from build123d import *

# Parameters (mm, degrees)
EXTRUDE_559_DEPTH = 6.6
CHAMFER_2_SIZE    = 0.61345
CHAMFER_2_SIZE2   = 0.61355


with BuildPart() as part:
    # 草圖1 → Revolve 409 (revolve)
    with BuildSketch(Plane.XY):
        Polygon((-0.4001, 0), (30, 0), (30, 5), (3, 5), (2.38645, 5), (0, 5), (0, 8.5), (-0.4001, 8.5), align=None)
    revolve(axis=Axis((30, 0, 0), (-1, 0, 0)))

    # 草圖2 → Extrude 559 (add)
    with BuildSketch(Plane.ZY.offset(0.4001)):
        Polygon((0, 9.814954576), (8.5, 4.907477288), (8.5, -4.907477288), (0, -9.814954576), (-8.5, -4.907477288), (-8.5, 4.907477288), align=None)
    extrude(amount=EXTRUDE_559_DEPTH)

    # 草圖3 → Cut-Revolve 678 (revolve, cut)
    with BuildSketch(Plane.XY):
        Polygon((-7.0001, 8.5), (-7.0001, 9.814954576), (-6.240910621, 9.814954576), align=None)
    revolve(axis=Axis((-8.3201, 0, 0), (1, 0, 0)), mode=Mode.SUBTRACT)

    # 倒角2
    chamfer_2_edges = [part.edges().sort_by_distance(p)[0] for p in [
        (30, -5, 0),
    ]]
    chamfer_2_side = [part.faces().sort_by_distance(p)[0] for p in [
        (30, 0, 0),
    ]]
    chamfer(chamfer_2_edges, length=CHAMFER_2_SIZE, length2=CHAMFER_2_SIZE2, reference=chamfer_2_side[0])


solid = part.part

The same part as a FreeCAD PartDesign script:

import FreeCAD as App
import Part
import Sketcher
from FreeCAD import Vector
Q = App.Units.Quantity


def edges_at(feature, points):
    """Names of the edges that pass closest to the given points."""
    edges = feature.Shape.Edges
    near = lambda p: min(range(len(edges)), key=lambda i: edges[i].distToShape(Part.Vertex(*p))[0])
    return sorted({f"Edge{near(p) + 1}" for p in points})

doc = App.newDocument("Part")
body = doc.addObject("PartDesign::Body", "Body")

sketch1 = body.newObject("Sketcher::SketchObject", "Sketch")
sketch1.AttachmentSupport = (doc.getObject("XY_Plane"), [""])
sketch1.MapMode = "FlatFace"
sketch1.addGeometry(Part.LineSegment(Vector(-0.4, 0, 0), Vector(30, 0, 0)), False)
sketch1.addGeometry(Part.LineSegment(Vector(30, 0, 0), Vector(30, 5, 0)), False)
sketch1.addGeometry(Part.LineSegment(Vector(30, 5, 0), Vector(0, 5, 0)), False)
sketch1.addGeometry(Part.LineSegment(Vector(0, 5, 0), Vector(0, 8.5, 0)), False)
sketch1.addGeometry(Part.LineSegment(Vector(0, 8.5, 0), Vector(-0.4, 8.5, 0)), False)
sketch1.addGeometry(Part.LineSegment(Vector(-0.4, 8.5, 0), Vector(-0.4, 0, 0)), False)
sketch1.addConstraint(Sketcher.Constraint("Coincident", 0, 2, 1, 1))
sketch1.addConstraint(Sketcher.Constraint("Coincident", 1, 2, 2, 1))
sketch1.addConstraint(Sketcher.Constraint("Coincident", 2, 2, 3, 1))
sketch1.addConstraint(Sketcher.Constraint("Coincident", 3, 2, 4, 1))
sketch1.addConstraint(Sketcher.Constraint("Coincident", 4, 2, 5, 1))
sketch1.addConstraint(Sketcher.Constraint("Coincident", 5, 2, 0, 1))
sketch1.addConstraint(Sketcher.Constraint("Horizontal", 0))
sketch1.addConstraint(Sketcher.Constraint("Vertical", 1))
sketch1.addConstraint(Sketcher.Constraint("Horizontal", 2))
sketch1.addConstraint(Sketcher.Constraint("Vertical", 3))
sketch1.addConstraint(Sketcher.Constraint("Horizontal", 4))
sketch1.addConstraint(Sketcher.Constraint("Vertical", 5))
sketch1.addConstraint(Sketcher.Constraint("PointOnObject", 0, 2, -1))
sketch1.addConstraint(Sketcher.Constraint("PointOnObject", 2, 2, -2))
sketch1.addConstraint(Sketcher.Constraint("DistanceX", 2, 2, 2, 1, 30.0))
sketch1.addConstraint(Sketcher.Constraint("DistanceY", 1, 1, 1, 2, 5.0))
sketch1.addConstraint(Sketcher.Constraint("DistanceY", 3, 1, 3, 2, 3.5))
sketch1.addConstraint(Sketcher.Constraint("DistanceX", 0, 1, 0, 2, 30.4001))
revolution = body.newObject("PartDesign::Revolution", "Revolution")
revolution.Profile = sketch1
revolution.ReferenceAxis = (sketch1, ["H_Axis"])
revolution.Angle = 360

sketch2 = body.newObject("Sketcher::SketchObject", "Sketch001")
sketch2.AttachmentSupport = (doc.getObject("YZ_Plane"), [""])
sketch2.MapMode = "FlatFace"
sketch2.AttachmentOffset = App.Placement(Vector(0, 0, -0.4001), App.Rotation())
sketch2.addGeometry(Part.LineSegment(Vector(5, 8, 0), Vector(10, 0, 0)), False)
sketch2.addGeometry(Part.LineSegment(Vector(10, 0, 0), Vector(5, -8, 0)), False)
sketch2.addGeometry(Part.LineSegment(Vector(5, -8, 0), Vector(-5, -8, 0)), False)
sketch2.addGeometry(Part.LineSegment(Vector(-5, -8, 0), Vector(-10, 0, 0)), False)
sketch2.addGeometry(Part.LineSegment(Vector(-10, 0, 0), Vector(-5, 8, 0)), False)
sketch2.addGeometry(Part.LineSegment(Vector(-5, 8, 0), Vector(5, 8, 0)), False)
sketch2.addConstraint(Sketcher.Constraint("Coincident", 0, 2, 1, 1))
sketch2.addConstraint(Sketcher.Constraint("Coincident", 1, 2, 2, 1))
sketch2.addConstraint(Sketcher.Constraint("Coincident", 2, 2, 3, 1))
sketch2.addConstraint(Sketcher.Constraint("Coincident", 3, 2, 4, 1))
sketch2.addConstraint(Sketcher.Constraint("Coincident", 4, 2, 5, 1))
sketch2.addConstraint(Sketcher.Constraint("Coincident", 5, 2, 0, 1))
sketch2.addConstraint(Sketcher.Constraint("Horizontal", 2))
sketch2.addConstraint(Sketcher.Constraint("Horizontal", 5))
sketch2.addConstraint(Sketcher.Constraint("Symmetric", 0, 2, 3, 2, -1, 1))
sketch2.addConstraint(Sketcher.Constraint("Symmetric", 1, 2, 4, 2, -1, 1))
sketch2.addConstraint(Sketcher.Constraint("PointOnObject", 0, 2, -1))
sketch2.addConstraint(Sketcher.Constraint("Parallel", 0, 3))
sketch2.addConstraint(Sketcher.Constraint("Vertical", 2, 2, 4, 2))
sketch2.addConstraint(Sketcher.Constraint("Angle", 0, Q("-60 deg")))
sketch2.addConstraint(Sketcher.Constraint("DistanceY", 2, 2, 4, 2, 17.0))
sketch2.addConstraint(Sketcher.Constraint("DistanceX", 2, 2, 2, 1, 9.814955))
pad1 = body.newObject("PartDesign::Pad", "Pad")
pad1.Profile = sketch2
pad1.Length = 6.6
pad1.Reversed = True

sketch3 = body.newObject("Sketcher::SketchObject", "Sketch002")
sketch3.AttachmentSupport = (doc.getObject("XY_Plane"), [""])
sketch3.MapMode = "FlatFace"
sketch3.addGeometry(Part.LineSegment(Vector(-7, 9.8, 0), Vector(-7, 8.5, 0)), False)
sketch3.addGeometry(Part.LineSegment(Vector(-7, 8.5, 0), Vector(-6.2, 9.8, 0)), False)
sketch3.addGeometry(Part.LineSegment(Vector(-6.2, 9.8, 0), Vector(-7, 9.8, 0)), False)
sketch3.addConstraint(Sketcher.Constraint("Coincident", 0, 2, 1, 1))
sketch3.addConstraint(Sketcher.Constraint("Coincident", 1, 2, 2, 1))
sketch3.addConstraint(Sketcher.Constraint("Coincident", 2, 2, 0, 1))
sketch3.addConstraint(Sketcher.Constraint("Vertical", 0))
sketch3.addConstraint(Sketcher.Constraint("Horizontal", 2))
sketch3.addConstraint(Sketcher.Constraint("Angle", 1, Q("60 deg")))
sketch3.addConstraint(Sketcher.Constraint("DistanceY", -1, 1, 0, 2, 8.5))
sketch3.addConstraint(Sketcher.Constraint("DistanceX", 2, 2, 2, 1, 0.759189))
sketch3.addConstraint(Sketcher.Constraint("DistanceX", 0, 2, -1, 1, 7.0001))
groove = body.newObject("PartDesign::Groove", "Groove")
groove.Profile = sketch3
groove.ReferenceAxis = (sketch3, ["H_Axis"])
groove.Angle = 360
doc.recompute()

chamfer = body.newObject("PartDesign::Chamfer", "Chamfer")
chamfer.Base = (groove, edges_at(groove, [(30, -5, 0)]))
chamfer.ChamferType = "Two distances"
chamfer.Size = 0.61345
chamfer.Size2 = 0.61355

doc.recompute()
